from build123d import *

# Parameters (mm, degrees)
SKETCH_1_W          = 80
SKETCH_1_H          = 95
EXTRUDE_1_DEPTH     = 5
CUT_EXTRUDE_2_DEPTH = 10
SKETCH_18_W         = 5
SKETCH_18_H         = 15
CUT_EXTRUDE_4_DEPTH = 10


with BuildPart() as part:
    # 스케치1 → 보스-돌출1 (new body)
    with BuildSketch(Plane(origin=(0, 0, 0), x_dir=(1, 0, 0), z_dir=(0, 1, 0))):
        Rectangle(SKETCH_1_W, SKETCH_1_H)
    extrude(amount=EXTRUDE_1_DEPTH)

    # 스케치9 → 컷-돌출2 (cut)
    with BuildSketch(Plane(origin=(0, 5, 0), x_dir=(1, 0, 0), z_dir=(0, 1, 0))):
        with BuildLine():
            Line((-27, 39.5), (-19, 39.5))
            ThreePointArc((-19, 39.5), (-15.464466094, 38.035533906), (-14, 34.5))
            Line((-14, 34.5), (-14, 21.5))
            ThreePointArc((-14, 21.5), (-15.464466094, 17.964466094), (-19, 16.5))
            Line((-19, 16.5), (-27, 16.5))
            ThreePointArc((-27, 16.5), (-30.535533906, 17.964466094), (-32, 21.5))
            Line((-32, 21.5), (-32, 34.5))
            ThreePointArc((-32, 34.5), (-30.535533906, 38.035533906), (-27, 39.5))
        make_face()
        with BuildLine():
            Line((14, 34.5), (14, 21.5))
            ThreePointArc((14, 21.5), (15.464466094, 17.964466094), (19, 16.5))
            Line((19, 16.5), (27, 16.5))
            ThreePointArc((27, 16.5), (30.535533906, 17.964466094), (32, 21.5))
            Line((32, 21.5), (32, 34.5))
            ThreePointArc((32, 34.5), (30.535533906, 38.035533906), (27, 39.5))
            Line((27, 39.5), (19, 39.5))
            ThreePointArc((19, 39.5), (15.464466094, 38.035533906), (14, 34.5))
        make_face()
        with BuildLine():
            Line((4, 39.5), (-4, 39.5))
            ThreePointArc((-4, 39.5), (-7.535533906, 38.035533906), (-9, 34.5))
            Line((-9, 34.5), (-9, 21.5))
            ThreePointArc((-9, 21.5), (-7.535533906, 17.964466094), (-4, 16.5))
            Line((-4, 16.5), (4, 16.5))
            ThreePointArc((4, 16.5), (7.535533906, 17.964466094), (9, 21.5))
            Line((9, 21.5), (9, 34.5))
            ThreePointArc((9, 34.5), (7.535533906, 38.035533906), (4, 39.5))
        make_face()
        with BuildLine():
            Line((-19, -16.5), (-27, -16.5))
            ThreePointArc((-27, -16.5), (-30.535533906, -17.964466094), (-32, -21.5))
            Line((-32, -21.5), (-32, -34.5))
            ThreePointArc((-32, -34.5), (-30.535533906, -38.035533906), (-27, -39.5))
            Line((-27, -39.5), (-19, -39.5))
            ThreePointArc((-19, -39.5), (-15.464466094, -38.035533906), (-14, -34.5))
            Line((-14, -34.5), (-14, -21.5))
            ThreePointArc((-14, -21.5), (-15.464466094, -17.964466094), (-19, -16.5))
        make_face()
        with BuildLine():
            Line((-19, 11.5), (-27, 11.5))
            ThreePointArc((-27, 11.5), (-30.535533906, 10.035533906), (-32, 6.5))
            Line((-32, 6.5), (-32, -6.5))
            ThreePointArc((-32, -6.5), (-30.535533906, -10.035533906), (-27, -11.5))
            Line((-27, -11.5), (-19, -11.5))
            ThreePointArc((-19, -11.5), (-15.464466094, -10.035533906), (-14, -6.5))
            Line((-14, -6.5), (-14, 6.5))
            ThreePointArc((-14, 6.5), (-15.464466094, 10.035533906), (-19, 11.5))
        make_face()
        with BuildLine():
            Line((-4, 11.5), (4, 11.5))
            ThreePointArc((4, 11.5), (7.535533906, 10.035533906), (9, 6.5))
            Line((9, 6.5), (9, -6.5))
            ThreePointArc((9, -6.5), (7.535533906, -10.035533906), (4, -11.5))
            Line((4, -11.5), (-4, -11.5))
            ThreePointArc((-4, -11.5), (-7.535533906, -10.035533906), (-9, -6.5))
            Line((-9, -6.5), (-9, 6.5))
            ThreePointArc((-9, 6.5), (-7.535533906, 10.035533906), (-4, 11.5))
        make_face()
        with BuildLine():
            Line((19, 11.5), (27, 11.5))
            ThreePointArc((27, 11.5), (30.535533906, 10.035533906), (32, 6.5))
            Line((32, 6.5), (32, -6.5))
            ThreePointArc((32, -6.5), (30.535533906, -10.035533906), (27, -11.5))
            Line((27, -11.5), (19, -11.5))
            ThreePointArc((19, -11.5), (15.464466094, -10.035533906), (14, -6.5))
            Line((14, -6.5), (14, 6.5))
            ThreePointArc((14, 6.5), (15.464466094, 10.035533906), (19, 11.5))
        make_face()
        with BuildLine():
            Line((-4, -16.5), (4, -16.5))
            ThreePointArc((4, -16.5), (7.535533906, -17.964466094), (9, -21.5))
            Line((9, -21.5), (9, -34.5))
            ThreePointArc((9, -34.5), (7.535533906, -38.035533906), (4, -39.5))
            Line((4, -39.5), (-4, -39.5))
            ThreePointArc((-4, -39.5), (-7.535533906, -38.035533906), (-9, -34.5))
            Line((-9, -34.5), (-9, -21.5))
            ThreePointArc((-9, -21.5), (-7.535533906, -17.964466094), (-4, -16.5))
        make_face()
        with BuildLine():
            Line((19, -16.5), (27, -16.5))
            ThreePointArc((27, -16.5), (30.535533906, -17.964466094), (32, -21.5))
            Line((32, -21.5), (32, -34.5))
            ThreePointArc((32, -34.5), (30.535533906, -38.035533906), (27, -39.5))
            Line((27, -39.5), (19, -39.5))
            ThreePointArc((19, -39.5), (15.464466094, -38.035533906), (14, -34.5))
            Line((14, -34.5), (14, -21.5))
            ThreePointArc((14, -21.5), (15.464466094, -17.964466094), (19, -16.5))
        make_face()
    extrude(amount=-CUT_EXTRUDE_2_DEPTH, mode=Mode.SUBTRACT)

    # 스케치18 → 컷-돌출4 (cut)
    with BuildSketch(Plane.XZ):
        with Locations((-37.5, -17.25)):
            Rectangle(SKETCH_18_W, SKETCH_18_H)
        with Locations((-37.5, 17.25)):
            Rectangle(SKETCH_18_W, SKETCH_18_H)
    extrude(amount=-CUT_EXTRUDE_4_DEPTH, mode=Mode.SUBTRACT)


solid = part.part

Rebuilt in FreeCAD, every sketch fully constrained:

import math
import FreeCAD as App
import Part
import Sketcher

V = App.Vector
Q = App.Units.Quantity


def add_polygon(sketch, points):
    """Adds a closed chain of lines whose ends are joined by coincident constraints."""
    first, n = sketch.GeometryCount, len(points)
    for a, b in zip(points, points[1:] + points[:1]):
        sketch.addGeometry(Part.LineSegment(App.Vector(*a, 0), App.Vector(*b, 0)), False)
    for i in range(n):
        sketch.addConstraint(Sketcher.Constraint("Coincident", first + i, 2, first + (i + 1) % n, 1))

doc = App.newDocument("Part")
body = doc.addObject("PartDesign::Body", "Body")

# Sketch on XZ plane
sketch1 = doc.addObject("Sketcher::SketchObject", "Sketch")
body.addObject(sketch1)
sketch1.AttachmentSupport = (doc.XZ_Plane, [""])
sketch1.MapMode = "FlatFace"
add_polygon(sketch1, [(-40, -47.5), (-40, 47.5), (40, 47.5), (40, -47.5)])  # lines 0-3
sketch1.addConstraint([
    Sketcher.Constraint("Vertical", 0),
    Sketcher.Constraint("Horizontal", 1),
    Sketcher.Constraint("Vertical", 2),
    Sketcher.Constraint("Horizontal", 3),
    Sketcher.Constraint("Symmetric", 0, 2, 2, 2, -1, 1),
    Sketcher.Constraint("DistanceX", 1, 1, 1, 2, Q("80 mm")),
    Sketcher.Constraint("DistanceY", 0, 1, 0, 2, Q("95 mm")),
])
pad1 = doc.addObject("PartDesign::Pad", "Pad")
body.addObject(pad1)
pad1.Profile = sketch1
pad1.Length = 5
pad1.Reversed = True

# Sketch on XZ plane
sketch2 = doc.addObject("Sketcher::SketchObject", "Sketch001")
body.addObject(sketch2)
sketch2.AttachmentSupport = (doc.XZ_Plane, [""])
sketch2.MapMode = "FlatFace"
sketch2.AttachmentOffset = App.Placement(V(0, 0, -5), App.Rotation())
sketch2.addGeometry([
    Part.LineSegment(V(-19, -39.5, 0), V(-27, -39.5, 0)),  # 0
    Part.ArcOfCircle(Part.Circle(V(-27, -34.5, 0), V(0, 0, 1), 5), math.radians(180), math.radians(270)),  # 1
    Part.LineSegment(V(-32, -34.5, 0), V(-32, -21.5, 0)),  # 2
    Part.ArcOfCircle(Part.Circle(V(-27, -21.5, 0), V(0, 0, 1), 5), math.radians(90), math.radians(180)),  # 3
    Part.LineSegment(V(-27, -16.5, 0), V(-19, -16.5, 0)),  # 4
    Part.ArcOfCircle(Part.Circle(V(-19, -21.5, 0), V(0, 0, 1), 5), math.radians(0), math.radians(90)),  # 5
    Part.LineSegment(V(-14, -21.5, 0), V(-14, -34.5, 0)),  # 6
    Part.ArcOfCircle(Part.Circle(V(-19, -34.5, 0), V(0, 0, 1), 5), math.radians(-90), math.radians(0)),  # 7
    Part.LineSegment(V(14, -34.5, 0), V(14, -21.5, 0)),  # 8
    Part.ArcOfCircle(Part.Circle(V(19, -21.5, 0), V(0, 0, 1), 5), math.radians(90), math.radians(180)),  # 9
    Part.LineSegment(V(19, -16.5, 0), V(27, -16.5, 0)),  # 10
    Part.ArcOfCircle(Part.Circle(V(27, -21.5, 0), V(0, 0, 1), 5), math.radians(0), math.radians(90)),  # 11
    Part.LineSegment(V(32, -21.5, 0), V(32, -34.5, 0)),  # 12
    Part.ArcOfCircle(Part.Circle(V(27, -34.5, 0), V(0, 0, 1), 5), math.radians(-90), math.radians(0)),  # 13
    Part.LineSegment(V(27, -39.5, 0), V(19, -39.5, 0)),  # 14
    Part.ArcOfCircle(Part.Circle(V(19, -34.5, 0), V(0, 0, 1), 5), math.radians(180), math.radians(270)),  # 15
    Part.LineSegment(V(4, -39.5, 0), V(-4, -39.5, 0)),  # 16
    Part.ArcOfCircle(Part.Circle(V(-4, -34.5, 0), V(0, 0, 1), 5), math.radians(180), math.radians(270)),  # 17
    Part.LineSegment(V(-9, -34.5, 0), V(-9, -21.5, 0)),  # 18
    Part.ArcOfCircle(Part.Circle(V(-4, -21.5, 0), V(0, 0, 1), 5), math.radians(90), math.radians(180)),  # 19
    Part.LineSegment(V(-4, -16.5, 0), V(4, -16.5, 0)),  # 20
    Part.ArcOfCircle(Part.Circle(V(4, -21.5, 0), V(0, 0, 1), 5), math.radians(0), math.radians(90)),  # 21
    Part.LineSegment(V(9, -21.5, 0), V(9, -34.5, 0)),  # 22
    Part.ArcOfCircle(Part.Circle(V(4, -34.5, 0), V(0, 0, 1), 5), math.radians(-90), math.radians(0)),  # 23
    Part.LineSegment(V(-19, 16.5, 0), V(-27, 16.5, 0)),  # 24
    Part.ArcOfCircle(Part.Circle(V(-27, 21.5, 0), V(0, 0, 1), 5), math.radians(180), math.radians(270)),  # 25
    Part.LineSegment(V(-32, 21.5, 0), V(-32, 34.5, 0)),  # 26
    Part.ArcOfCircle(Part.Circle(V(-27, 34.5, 0), V(0, 0, 1), 5), math.radians(90), math.radians(180)),  # 27
    Part.LineSegment(V(-27, 39.5, 0), V(-19, 39.5, 0)),  # 28
    Part.ArcOfCircle(Part.Circle(V(-19, 34.5, 0), V(0, 0, 1), 5), math.radians(0), math.radians(90)),  # 29
    Part.LineSegment(V(-14, 34.5, 0), V(-14, 21.5, 0)),  # 30
    Part.ArcOfCircle(Part.Circle(V(-19, 21.5, 0), V(0, 0, 1), 5), math.radians(-90), math.radians(0)),  # 31
    Part.LineSegment(V(-19, -11.5, 0), V(-27, -11.5, 0)),  # 32
    Part.ArcOfCircle(Part.Circle(V(-27, -6.5, 0), V(0, 0, 1), 5), math.radians(180), math.radians(270)),  # 33
    Part.LineSegment(V(-32, -6.5, 0), V(-32, 6.5, 0)),  # 34
    Part.ArcOfCircle(Part.Circle(V(-27, 6.5, 0), V(0, 0, 1), 5), math.radians(90), math.radians(180)),  # 35
    Part.LineSegment(V(-27, 11.5, 0), V(-19, 11.5, 0)),  # 36
    Part.ArcOfCircle(Part.Circle(V(-19, 6.5, 0), V(0, 0, 1), 5), math.radians(0), math.radians(90)),  # 37
    Part.LineSegment(V(-14, 6.5, 0), V(-14, -6.5, 0)),  # 38
    Part.ArcOfCircle(Part.Circle(V(-19, -6.5, 0), V(0, 0, 1), 5), math.radians(-90), math.radians(0)),  # 39
    Part.LineSegment(V(4, -11.5, 0), V(-4, -11.5, 0)),  # 40
    Part.ArcOfCircle(Part.Circle(V(-4, -6.5, 0), V(0, 0, 1), 5), math.radians(180), math.radians(270)),  # 41
    Part.LineSegment(V(-9, -6.5, 0), V(-9, 6.5, 0)),  # 42
    Part.ArcOfCircle(Part.Circle(V(-4, 6.5, 0), V(0, 0, 1), 5), math.radians(90), math.radians(180)),  # 43
    Part.LineSegment(V(-4, 11.5, 0), V(4, 11.5, 0)),  # 44
    Part.ArcOfCircle(Part.Circle(V(4, 6.5, 0), V(0, 0, 1), 5), math.radians(0), math.radians(90)),  # 45
    Part.LineSegment(V(9, 6.5, 0), V(9, -6.5, 0)),  # 46
    Part.ArcOfCircle(Part.Circle(V(4, -6.5, 0), V(0, 0, 1), 5), math.radians(-90), math.radians(0)),  # 47
    Part.LineSegment(V(27, -11.5, 0), V(19, -11.5, 0)),  # 48
    Part.ArcOfCircle(Part.Circle(V(19, -6.5, 0), V(0, 0, 1), 5), math.radians(180), math.radians(270)),  # 49
    Part.LineSegment(V(14, -6.5, 0), V(14, 6.5, 0)),  # 50
    Part.ArcOfCircle(Part.Circle(V(19, 6.5, 0), V(0, 0, 1), 5), math.radians(90), math.radians(180)),  # 51
    Part.LineSegment(V(19, 11.5, 0), V(27, 11.5, 0)),  # 52
    Part.ArcOfCircle(Part.Circle(V(27, 6.5, 0), V(0, 0, 1), 5), math.radians(0), math.radians(90)),  # 53
    Part.LineSegment(V(32, 6.5, 0), V(32, -6.5, 0)),  # 54
    Part.ArcOfCircle(Part.Circle(V(27, -6.5, 0), V(0, 0, 1), 5), math.radians(-90), math.radians(0)),  # 55
    Part.LineSegment(V(4, 16.5, 0), V(-4, 16.5, 0)),  # 56
    Part.ArcOfCircle(Part.Circle(V(-4, 21.5, 0), V(0, 0, 1), 5), math.radians(180), math.radians(270)),  # 57
    Part.LineSegment(V(-9, 21.5, 0), V(-9, 34.5, 0)),  # 58
    Part.ArcOfCircle(Part.Circle(V(-4, 34.5, 0), V(0, 0, 1), 5), math.radians(90), math.radians(180)),  # 59
    Part.LineSegment(V(-4, 39.5, 0), V(4, 39.5, 0)),  # 60
    Part.ArcOfCircle(Part.Circle(V(4, 34.5, 0), V(0, 0, 1), 5), math.radians(0), math.radians(90)),  # 61
    Part.LineSegment(V(9, 34.5, 0), V(9, 21.5, 0)),  # 62
    Part.ArcOfCircle(Part.Circle(V(4, 21.5, 0), V(0, 0, 1), 5), math.radians(-90), math.radians(0)),  # 63
    Part.LineSegment(V(27, 16.5, 0), V(19, 16.5, 0)),  # 64
    Part.ArcOfCircle(Part.Circle(V(19, 21.5, 0), V(0, 0, 1), 5), math.radians(180), math.radians(270)),  # 65
    Part.LineSegment(V(14, 21.5, 0), V(14, 34.5, 0)),  # 66
    Part.ArcOfCircle(Part.Circle(V(19, 34.5, 0), V(0, 0, 1), 5), math.radians(90), math.radians(180)),  # 67
    Part.LineSegment(V(19, 39.5, 0), V(27, 39.5, 0)),  # 68
    Part.ArcOfCircle(Part.Circle(V(27, 34.5, 0), V(0, 0, 1), 5), math.radians(0), math.radians(90)),  # 69
    Part.LineSegment(V(32, 34.5, 0), V(32, 21.5, 0)),  # 70
    Part.ArcOfCircle(Part.Circle(V(27, 21.5, 0), V(0, 0, 1), 5), math.radians(-90), math.radians(0)),  # 71
], False)
sketch2.addConstraint([
    Sketcher.Constraint("Tangent", 0, 2, 1, 2),
    Sketcher.Constraint("Tangent", 1, 1, 2, 1),
    Sketcher.Constraint("Tangent", 2, 2, 3, 2),
    Sketcher.Constraint("Tangent", 3, 1, 4, 1),
    Sketcher.Constraint("Tangent", 4, 2, 5, 2),
    Sketcher.Constraint("Tangent", 5, 1, 6, 1),
    Sketcher.Constraint("Tangent", 6, 2, 7, 2),
    Sketcher.Constraint("Tangent", 7, 1, 0, 1),
    Sketcher.Constraint("Tangent", 8, 2, 9, 2),
    Sketcher.Constraint("Tangent", 9, 1, 10, 1),
    Sketcher.Constraint("Tangent", 10, 2, 11, 2),
    Sketcher.Constraint("Tangent", 11, 1, 12, 1),
    Sketcher.Constraint("Tangent", 12, 2, 13, 2),
    Sketcher.Constraint("Tangent", 13, 1, 14, 1),
    Sketcher.Constraint("Tangent", 14, 2, 15, 2),
    Sketcher.Constraint("Tangent", 15, 1, 8, 1),
    Sketcher.Constraint("Tangent", 16, 2, 17, 2),
    Sketcher.Constraint("Tangent", 17, 1, 18, 1),
    Sketcher.Constraint("Tangent", 18, 2, 19, 2),
    Sketcher.Constraint("Tangent", 19, 1, 20, 1),
    Sketcher.Constraint("Tangent", 20, 2, 21, 2),
    Sketcher.Constraint("Tangent", 21, 1, 22, 1),
    Sketcher.Constraint("Tangent", 22, 2, 23, 2),
    Sketcher.Constraint("Tangent", 23, 1, 16, 1),
    Sketcher.Constraint("Tangent", 24, 2, 25, 2),
    Sketcher.Constraint("Tangent", 25, 1, 26, 1),
    Sketcher.Constraint("Tangent", 26, 2, 27, 2),
    Sketcher.Constraint("Tangent", 27, 1, 28, 1),
    Sketcher.Constraint("Tangent", 28, 2, 29, 2),
    Sketcher.Constraint("Tangent", 29, 1, 30, 1),
    Sketcher.Constraint("Tangent", 30, 2, 31, 2),
    Sketcher.Constraint("Tangent", 31, 1, 24, 1),
    Sketcher.Constraint("Tangent", 32, 2, 33, 2),
    Sketcher.Constraint("Tangent", 33, 1, 34, 1),
    Sketcher.Constraint("Tangent", 34, 2, 35, 2),
    Sketcher.Constraint("Tangent", 35, 1, 36, 1),
    Sketcher.Constraint("Tangent", 36, 2, 37, 2),
    Sketcher.Constraint("Tangent", 37, 1, 38, 1),
    Sketcher.Constraint("Tangent", 38, 2, 39, 2),
    Sketcher.Constraint("Tangent", 39, 1, 32, 1),
    Sketcher.Constraint("Tangent", 40, 2, 41, 2),
    Sketcher.Constraint("Tangent", 41, 1, 42, 1),
    Sketcher.Constraint("Tangent", 42, 2, 43, 2),
    Sketcher.Constraint("Tangent", 43, 1, 44, 1),
    Sketcher.Constraint("Tangent", 44, 2, 45, 2),
    Sketcher.Constraint("Tangent", 45, 1, 46, 1),
    Sketcher.Constraint("Tangent", 46, 2, 47, 2),
    Sketcher.Constraint("Tangent", 47, 1, 40, 1),
    Sketcher.Constraint("Tangent", 48, 2, 49, 2),
    Sketcher.Constraint("Tangent", 49, 1, 50, 1),
    Sketcher.Constraint("Tangent", 50, 2, 51, 2),
    Sketcher.Constraint("Tangent", 51, 1, 52, 1),
    Sketcher.Constraint("Tangent", 52, 2, 53, 2),
    Sketcher.Constraint("Tangent", 53, 1, 54, 1),
    Sketcher.Constraint("Tangent", 54, 2, 55, 2),
    Sketcher.Constraint("Tangent", 55, 1, 48, 1),
    Sketcher.Constraint("Tangent", 56, 2, 57, 2),
    Sketcher.Constraint("Tangent", 57, 1, 58, 1),
    Sketcher.Constraint("Tangent", 58, 2, 59, 2),
    Sketcher.Constraint("Tangent", 59, 1, 60, 1),
    Sketcher.Constraint("Tangent", 60, 2, 61, 2),
    Sketcher.Constraint("Tangent", 61, 1, 62, 1),
    Sketcher.Constraint("Tangent", 62, 2, 63, 2),
    Sketcher.Constraint("Tangent", 63, 1, 56, 1),
    Sketcher.Constraint("Tangent", 64, 2, 65, 2),
    Sketcher.Constraint("Tangent", 65, 1, 66, 1),
    Sketcher.Constraint("Tangent", 66, 2, 67, 2),
    Sketcher.Constraint("Tangent", 67, 1, 68, 1),
    Sketcher.Constraint("Tangent", 68, 2, 69, 2),
    Sketcher.Constraint("Tangent", 69, 1, 70, 1),
    Sketcher.Constraint("Tangent", 70, 2, 71, 2),
    Sketcher.Constraint("Tangent", 71, 1, 64, 1),
    Sketcher.Constraint("Horizontal", 0),
    Sketcher.Constraint("Vertical", 2),
    Sketcher.Constraint("Horizontal", 4),
    Sketcher.Constraint("Vertical", 6),
    Sketcher.Constraint("Vertical", 8),
    Sketcher.Constraint("Horizontal", 10),
    Sketcher.Constraint("Vertical", 12),
    Sketcher.Constraint("Horizontal", 14),
    Sketcher.Constraint("Horizontal", 16),
    Sketcher.Constraint("Vertical", 18),
    Sketcher.Constraint("Horizontal", 20),
    Sketcher.Constraint("Vertical", 22),
    Sketcher.Constraint("Horizontal", 24),
    Sketcher.Constraint("Vertical", 26),
    Sketcher.Constraint("Horizontal", 28),
    Sketcher.Constraint("Vertical", 30),
    Sketcher.Constraint("Horizontal", 32),
    Sketcher.Constraint("Vertical", 34),
    Sketcher.Constraint("Horizontal", 36),
    Sketcher.Constraint("Vertical", 38),
    Sketcher.Constraint("Horizontal", 40),
    Sketcher.Constraint("Vertical", 42),
    Sketcher.Constraint("Horizontal", 44),
    Sketcher.Constraint("Vertical", 46),
    Sketcher.Constraint("Horizontal", 48),
    Sketcher.Constraint("Vertical", 50),
    Sketcher.Constraint("Horizontal", 52),
    Sketcher.Constraint("Vertical", 54),
    Sketcher.Constraint("Horizontal", 56),
    Sketcher.Constraint("Vertical", 58),
    Sketcher.Constraint("Horizontal", 60),
    Sketcher.Constraint("Vertical", 62),
    Sketcher.Constraint("Horizontal", 64),
    Sketcher.Constraint("Vertical", 66),
    Sketcher.Constraint("Horizontal", 68),
    Sketcher.Constraint("Vertical", 70),
    Sketcher.Constraint("Equal", 1, 3),
    Sketcher.Constraint("Equal", 3, 5),
    Sketcher.Constraint("Equal", 5, 7),
    Sketcher.Constraint("Equal", 7, 9),
    Sketcher.Constraint("Equal", 9, 11),
    Sketcher.Constraint("Equal", 11, 13),
    Sketcher.Constraint("Equal", 13, 15),
    Sketcher.Constraint("Equal", 15, 17),
    Sketcher.Constraint("Equal", 17, 19),
    Sketcher.Constraint("Equal", 19, 21),
    Sketcher.Constraint("Equal", 21, 23),
    Sketcher.Constraint("Equal", 23, 25),
    Sketcher.Constraint("Equal", 25, 27),
    Sketcher.Constraint("Equal", 27, 29),
    Sketcher.Constraint("Equal", 29, 31),
    Sketcher.Constraint("Equal", 31, 33),
    Sketcher.Constraint("Equal", 33, 35),
    Sketcher.Constraint("Equal", 35, 37),
    Sketcher.Constraint("Equal", 37, 39),
    Sketcher.Constraint("Equal", 39, 41),
    Sketcher.Constraint("Equal", 41, 43),
    Sketcher.Constraint("Equal", 43, 45),
    Sketcher.Constraint("Equal", 45, 47),
    Sketcher.Constraint("Equal", 47, 49),
    Sketcher.Constraint("Equal", 49, 51),
    Sketcher.Constraint("Equal", 51, 53),
    Sketcher.Constraint("Equal", 53, 55),
    Sketcher.Constraint("Equal", 55, 57),
    Sketcher.Constraint("Equal", 57, 59),
    Sketcher.Constraint("Equal", 59, 61),
    Sketcher.Constraint("Equal", 61, 63),
    Sketcher.Constraint("Equal", 63, 65),
    Sketcher.Constraint("Equal", 65, 67),
    Sketcher.Constraint("Equal", 67, 69),
    Sketcher.Constraint("Equal", 69, 71),
    Sketcher.Constraint("Symmetric", 11, 3, 25, 3, -1, 1),
    Sketcher.Constraint("Symmetric", 15, 3, 29, 3, -1, 1),
    Sketcher.Constraint("Symmetric", 41, 3, 45, 3, -1, 1),
    Sketcher.Constraint("Symmetric", 37, 3, 49, 3, -1, 1),
    Sketcher.Constraint("Symmetric", 33, 3, 53, 3, -1, 1),
    Sketcher.Constraint("Symmetric", 21, 3, 57, 3, -1, 1),
    Sketcher.Constraint("Symmetric", 17, 3, 61, 3, -1, 1),
    Sketcher.Constraint("Symmetric", 5, 3, 65, 3, -1, 1),
    Sketcher.Constraint("Symmetric", 1, 3, 69, 3, -1, 1),
    Sketcher.Constraint("Symmetric", 5, 3, 9, 3, -2),
    Sketcher.Constraint("Symmetric", 1, 3, 13, 3, -2),
    Sketcher.Constraint("Horizontal", 15, 3, 17, 3),
    Sketcher.Constraint("Horizontal", 11, 3, 19, 3),
    Sketcher.Constraint("Horizontal", 39, 3, 41, 3),
    Sketcher.Constraint("Horizontal", 37, 3, 43, 3),
    Sketcher.Constraint("Vertical", 27, 3, 33, 3),
    Sketcher.Constraint("Vertical", 31, 3, 37, 3),
    Sketcher.Constraint("Vertical", 19, 3, 41, 3),
    Sketcher.Constraint("Vertical", 23, 3, 45, 3),
    Sketcher.Constraint("Equal", 14, 16),
    Sketcher.Constraint("Equal", 30, 34),
    Sketcher.Constraint("Radius", 1, Q("5 mm")),
    Sketcher.Constraint("DistanceX", 0, 2, 0, 1, Q("8 mm")),
    Sketcher.Constraint("DistanceY", 2, 1, 2, 2, Q("13 mm")),
    Sketcher.Constraint("DistanceX", 1, 3, -1, 1, Q("27 mm")),
    Sketcher.Constraint("DistanceY", 1, 3, -1, 1, Q("34.5 mm")),
])
pocket1 = doc.addObject("PartDesign::Pocket", "Pocket")
body.addObject(pocket1)
pocket1.Profile = sketch2
pocket1.Length = 10
pocket1.Reversed = True

# Sketch on XZ plane
sketch3 = doc.addObject("Sketcher::SketchObject", "Sketch002")
body.addObject(sketch3)
sketch3.AttachmentSupport = (doc.XZ_Plane, [""])
sketch3.MapMode = "FlatFace"
add_polygon(sketch3, [(-40, -9.75), (-40, -24.75), (-35, -24.75), (-35, -9.75)])  # lines 0-3
add_polygon(sketch3, [(-40, 24.75), (-40, 9.75), (-35, 9.75), (-35, 24.75)])  # lines 4-7
sketch3.addConstraint([
    Sketcher.Constraint("Vertical", 0),
    Sketcher.Constraint("Horizontal", 1),
    Sketcher.Constraint("Vertical", 2),
    Sketcher.Constraint("Horizontal", 3),
    Sketcher.Constraint("Vertical", 4),
    Sketcher.Constraint("Horizontal", 5),
    Sketcher.Constraint("Vertical", 6),
    Sketcher.Constraint("Horizontal", 7),
    Sketcher.Constraint("Symmetric", 3, 2, 4, 2, -1),
    Sketcher.Constraint("Symmetric", 1, 2, 6, 2, -1),
    Sketcher.Constraint("DistanceX", 1, 1, 1, 2, Q("5 mm")),
    Sketcher.Constraint("DistanceY", 0, 2, 0, 1, Q("15 mm")),
    Sketcher.Constraint("DistanceX", 0, 2, -1, 1, Q("40 mm")),
    Sketcher.Constraint("DistanceY", 3, 2, 4, 2, Q("19.5 mm")),
])
pocket2 = doc.addObject("PartDesign::Pocket", "Pocket001")
body.addObject(pocket2)
pocket2.Profile = sketch3
pocket2.Length = 10

doc.recompute()
